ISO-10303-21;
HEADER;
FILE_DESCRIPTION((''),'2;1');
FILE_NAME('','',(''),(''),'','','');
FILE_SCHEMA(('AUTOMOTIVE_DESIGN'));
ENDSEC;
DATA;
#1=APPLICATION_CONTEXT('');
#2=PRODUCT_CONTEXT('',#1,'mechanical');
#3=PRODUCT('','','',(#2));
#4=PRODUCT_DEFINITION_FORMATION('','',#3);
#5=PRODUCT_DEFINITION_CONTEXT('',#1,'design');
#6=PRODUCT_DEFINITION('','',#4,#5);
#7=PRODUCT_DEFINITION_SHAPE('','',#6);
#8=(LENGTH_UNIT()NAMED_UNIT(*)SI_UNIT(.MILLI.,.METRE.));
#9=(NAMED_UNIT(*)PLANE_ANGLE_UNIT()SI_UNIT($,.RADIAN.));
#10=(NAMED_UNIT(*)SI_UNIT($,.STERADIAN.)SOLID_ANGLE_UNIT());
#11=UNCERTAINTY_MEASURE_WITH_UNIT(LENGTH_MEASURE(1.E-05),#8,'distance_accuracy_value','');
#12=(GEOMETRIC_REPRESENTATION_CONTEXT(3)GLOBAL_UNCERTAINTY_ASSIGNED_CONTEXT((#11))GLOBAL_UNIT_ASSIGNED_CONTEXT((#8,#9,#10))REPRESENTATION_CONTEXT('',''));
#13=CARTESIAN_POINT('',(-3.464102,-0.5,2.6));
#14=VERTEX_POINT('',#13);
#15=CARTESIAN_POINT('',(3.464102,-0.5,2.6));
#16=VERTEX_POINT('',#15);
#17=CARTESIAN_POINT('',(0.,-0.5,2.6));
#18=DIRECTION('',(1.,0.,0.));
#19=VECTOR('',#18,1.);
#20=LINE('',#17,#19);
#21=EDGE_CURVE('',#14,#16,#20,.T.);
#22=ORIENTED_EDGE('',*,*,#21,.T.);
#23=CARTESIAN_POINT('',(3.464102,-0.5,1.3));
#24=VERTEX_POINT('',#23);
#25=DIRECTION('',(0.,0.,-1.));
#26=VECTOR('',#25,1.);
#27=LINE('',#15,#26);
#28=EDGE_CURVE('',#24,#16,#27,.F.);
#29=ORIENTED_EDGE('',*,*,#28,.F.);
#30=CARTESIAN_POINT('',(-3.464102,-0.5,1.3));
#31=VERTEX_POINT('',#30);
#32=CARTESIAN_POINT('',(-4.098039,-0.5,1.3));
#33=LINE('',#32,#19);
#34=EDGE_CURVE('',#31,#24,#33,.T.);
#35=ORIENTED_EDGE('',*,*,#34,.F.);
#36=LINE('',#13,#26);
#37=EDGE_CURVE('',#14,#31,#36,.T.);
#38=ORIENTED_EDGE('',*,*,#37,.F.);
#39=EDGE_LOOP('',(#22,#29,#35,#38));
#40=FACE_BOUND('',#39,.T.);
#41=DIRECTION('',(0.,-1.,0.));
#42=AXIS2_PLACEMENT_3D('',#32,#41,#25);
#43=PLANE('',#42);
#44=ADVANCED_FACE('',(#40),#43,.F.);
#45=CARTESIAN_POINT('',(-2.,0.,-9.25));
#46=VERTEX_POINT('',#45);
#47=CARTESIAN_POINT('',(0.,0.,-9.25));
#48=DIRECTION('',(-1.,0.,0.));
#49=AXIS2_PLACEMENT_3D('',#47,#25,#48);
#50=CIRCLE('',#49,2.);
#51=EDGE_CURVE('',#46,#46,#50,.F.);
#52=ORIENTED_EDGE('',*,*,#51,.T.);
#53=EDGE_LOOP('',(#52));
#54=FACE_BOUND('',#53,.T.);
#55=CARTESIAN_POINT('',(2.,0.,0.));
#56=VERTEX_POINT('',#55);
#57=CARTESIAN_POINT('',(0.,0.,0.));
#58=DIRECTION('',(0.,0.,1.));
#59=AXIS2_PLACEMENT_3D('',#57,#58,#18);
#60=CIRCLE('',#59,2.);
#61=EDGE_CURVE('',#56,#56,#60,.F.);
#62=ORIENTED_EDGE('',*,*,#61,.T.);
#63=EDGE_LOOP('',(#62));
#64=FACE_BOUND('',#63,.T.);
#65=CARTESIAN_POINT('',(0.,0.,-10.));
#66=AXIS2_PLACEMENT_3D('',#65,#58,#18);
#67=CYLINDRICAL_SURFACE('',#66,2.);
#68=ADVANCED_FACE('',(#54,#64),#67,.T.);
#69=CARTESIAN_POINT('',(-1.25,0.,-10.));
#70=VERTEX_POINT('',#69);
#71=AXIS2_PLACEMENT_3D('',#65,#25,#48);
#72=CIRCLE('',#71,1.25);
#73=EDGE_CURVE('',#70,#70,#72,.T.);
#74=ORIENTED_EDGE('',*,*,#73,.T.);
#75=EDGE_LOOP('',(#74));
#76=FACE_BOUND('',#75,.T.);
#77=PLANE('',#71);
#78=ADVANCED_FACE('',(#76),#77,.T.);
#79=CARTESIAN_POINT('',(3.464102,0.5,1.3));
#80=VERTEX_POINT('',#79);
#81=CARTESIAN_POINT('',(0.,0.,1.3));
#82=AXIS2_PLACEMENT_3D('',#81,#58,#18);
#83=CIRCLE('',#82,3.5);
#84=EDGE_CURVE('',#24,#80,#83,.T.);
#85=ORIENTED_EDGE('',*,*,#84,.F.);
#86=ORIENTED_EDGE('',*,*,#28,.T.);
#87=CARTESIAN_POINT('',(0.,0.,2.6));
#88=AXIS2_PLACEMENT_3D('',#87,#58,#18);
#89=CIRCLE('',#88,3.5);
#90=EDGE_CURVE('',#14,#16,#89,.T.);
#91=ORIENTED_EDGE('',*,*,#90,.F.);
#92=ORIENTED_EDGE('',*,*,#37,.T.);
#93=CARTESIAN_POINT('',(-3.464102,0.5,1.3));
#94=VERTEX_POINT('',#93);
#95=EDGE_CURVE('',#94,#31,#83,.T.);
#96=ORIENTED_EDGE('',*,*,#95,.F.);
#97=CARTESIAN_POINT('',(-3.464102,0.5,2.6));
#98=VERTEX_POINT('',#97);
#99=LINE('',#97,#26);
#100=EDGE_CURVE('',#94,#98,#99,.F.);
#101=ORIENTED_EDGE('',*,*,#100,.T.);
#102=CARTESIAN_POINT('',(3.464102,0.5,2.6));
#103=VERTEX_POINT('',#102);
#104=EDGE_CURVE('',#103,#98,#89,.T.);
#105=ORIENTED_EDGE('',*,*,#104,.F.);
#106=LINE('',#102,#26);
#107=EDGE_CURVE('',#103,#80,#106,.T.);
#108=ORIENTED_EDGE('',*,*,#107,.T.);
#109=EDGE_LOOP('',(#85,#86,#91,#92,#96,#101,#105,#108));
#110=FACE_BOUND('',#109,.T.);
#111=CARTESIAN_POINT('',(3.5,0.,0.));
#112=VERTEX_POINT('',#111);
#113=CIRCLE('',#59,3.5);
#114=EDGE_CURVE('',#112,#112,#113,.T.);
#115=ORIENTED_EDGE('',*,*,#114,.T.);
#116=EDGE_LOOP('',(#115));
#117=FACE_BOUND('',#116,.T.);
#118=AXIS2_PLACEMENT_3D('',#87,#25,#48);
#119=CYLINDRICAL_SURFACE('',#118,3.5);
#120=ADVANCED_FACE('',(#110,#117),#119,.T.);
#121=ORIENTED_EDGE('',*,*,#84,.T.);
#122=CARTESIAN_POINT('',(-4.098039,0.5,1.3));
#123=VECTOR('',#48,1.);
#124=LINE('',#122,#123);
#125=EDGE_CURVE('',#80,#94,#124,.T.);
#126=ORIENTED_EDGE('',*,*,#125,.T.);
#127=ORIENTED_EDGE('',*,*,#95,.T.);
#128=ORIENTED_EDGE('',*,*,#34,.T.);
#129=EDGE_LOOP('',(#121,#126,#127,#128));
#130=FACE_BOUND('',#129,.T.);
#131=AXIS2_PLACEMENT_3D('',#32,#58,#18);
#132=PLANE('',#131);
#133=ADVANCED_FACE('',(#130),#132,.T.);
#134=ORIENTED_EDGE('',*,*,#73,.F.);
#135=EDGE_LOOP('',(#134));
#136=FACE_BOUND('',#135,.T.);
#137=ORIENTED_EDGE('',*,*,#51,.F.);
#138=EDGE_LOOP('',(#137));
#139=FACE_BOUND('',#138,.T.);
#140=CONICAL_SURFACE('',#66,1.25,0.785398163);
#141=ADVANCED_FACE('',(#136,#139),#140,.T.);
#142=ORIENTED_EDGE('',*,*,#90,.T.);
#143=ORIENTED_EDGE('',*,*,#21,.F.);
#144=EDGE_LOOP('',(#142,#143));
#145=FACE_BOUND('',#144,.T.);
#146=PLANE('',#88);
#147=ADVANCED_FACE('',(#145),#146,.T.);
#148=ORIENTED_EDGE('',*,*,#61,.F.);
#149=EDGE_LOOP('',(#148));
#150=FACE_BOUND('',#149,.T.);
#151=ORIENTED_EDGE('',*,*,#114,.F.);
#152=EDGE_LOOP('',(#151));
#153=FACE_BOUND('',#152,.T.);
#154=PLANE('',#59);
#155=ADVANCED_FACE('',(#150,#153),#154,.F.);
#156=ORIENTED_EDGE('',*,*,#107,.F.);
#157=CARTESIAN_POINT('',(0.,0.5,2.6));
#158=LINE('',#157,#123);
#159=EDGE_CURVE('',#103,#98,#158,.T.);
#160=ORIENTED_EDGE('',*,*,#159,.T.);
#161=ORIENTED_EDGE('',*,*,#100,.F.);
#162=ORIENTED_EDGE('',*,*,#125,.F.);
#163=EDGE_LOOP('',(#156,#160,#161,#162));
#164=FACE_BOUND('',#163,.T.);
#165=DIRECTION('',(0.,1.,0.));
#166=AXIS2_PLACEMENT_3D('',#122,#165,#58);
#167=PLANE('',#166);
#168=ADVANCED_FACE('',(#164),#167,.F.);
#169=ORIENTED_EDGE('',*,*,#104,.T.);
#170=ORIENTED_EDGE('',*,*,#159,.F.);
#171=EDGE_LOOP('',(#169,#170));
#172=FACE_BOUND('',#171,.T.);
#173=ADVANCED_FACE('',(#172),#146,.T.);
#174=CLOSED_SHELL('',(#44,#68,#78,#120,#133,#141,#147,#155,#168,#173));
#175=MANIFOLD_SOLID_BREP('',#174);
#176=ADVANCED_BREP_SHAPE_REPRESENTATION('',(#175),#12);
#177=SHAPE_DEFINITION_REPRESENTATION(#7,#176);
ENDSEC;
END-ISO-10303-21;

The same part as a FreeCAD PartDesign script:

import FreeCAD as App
import Part
import Sketcher

V = App.Vector


def edges_at(feature, points):
    """Names of the edges that pass closest to the given points."""
    edges = feature.Shape.Edges
    near = lambda p: min(range(len(edges)), key=lambda i: edges[i].distToShape(Part.Vertex(*p))[0])
    return sorted({f"Edge{near(p) + 1}" for p in points})

doc = App.newDocument("Part")
body = doc.addObject("PartDesign::Body", "Body")

# Sketch on XY plane
sketch1 = body.newObject("Sketcher::SketchObject", "Sketch")
sketch1.AttachmentSupport = (doc.getObject("XY_Plane"), [""])
sketch1.MapMode = "FlatFace"
sketch1.addGeometry(Part.Circle(V(0, 0, 0), V(0, 0, 1), 3.5), False)
sketch1.addConstraint([
    Sketcher.Constraint("Coincident", 0, 3, -1, 1),
    Sketcher.Constraint("Diameter", 0, 7.0),
])
pad1 = body.newObject("PartDesign::Pad", "Pad")
pad1.Profile = sketch1
pad1.Length = 2.6

# Sketch on XY plane
sketch2 = body.newObject("Sketcher::SketchObject", "Sketch001")
sketch2.AttachmentSupport = (doc.getObject("XY_Plane"), [""])
sketch2.MapMode = "FlatFace"
sketch2.addGeometry(Part.Circle(V(0, 0, 0), V(0, 0, 1), 2), False)
sketch2.addConstraint([
    Sketcher.Constraint("Coincident", 0, 3, -1, 1),
    Sketcher.Constraint("Diameter", 0, 4.0),
])
pad2 = body.newObject("PartDesign::Pad", "Pad001")
pad2.Profile = sketch2
pad2.Length = 10
pad2.Reversed = True

# Sketch on XY plane
sketch3 = body.newObject("Sketcher::SketchObject", "Sketch002")
sketch3.AttachmentSupport = (doc.getObject("XY_Plane"), [""])
sketch3.MapMode = "FlatFace"
sketch3.AttachmentOffset = App.Placement(V(0, 0, 2.6), App.Rotation())
sketch3.addGeometry([
    Part.LineSegment(V(-4.098039, 0.5, 0), V(-4.098039, -0.5, 0)),
    Part.LineSegment(V(-4.098039, -0.5, 0), V(3.990196, -0.5, 0)),
    Part.LineSegment(V(3.990196, -0.5, 0), V(3.990196, 0.5, 0)),
    Part.LineSegment(V(3.990196, 0.5, 0), V(-4.098039, 0.5, 0)),
], False)
sketch3.addConstraint([
    Sketcher.Constraint("Coincident", 0, 2, 1, 1),
    Sketcher.Constraint("Coincident", 1, 2, 2, 1),
    Sketcher.Constraint("Coincident", 2, 2, 3, 1),
    Sketcher.Constraint("Coincident", 3, 2, 0, 1),
    Sketcher.Constraint("Vertical", 0),
    Sketcher.Constraint("Horizontal", 1),
    Sketcher.Constraint("Vertical", 2),
    Sketcher.Constraint("Horizontal", 3),
    Sketcher.Constraint("DistanceY", 0, 2, 0, 1, 1.0),
    Sketcher.Constraint("DistanceY", 0, 2, -1, 1, 0.5),
    Sketcher.Constraint("DistanceX", 1, 1, 1, 2, 8.088235),
    Sketcher.Constraint("DistanceX", 0, 2, -1, 1, 4.098039),
])
pocket1 = body.newObject("PartDesign::Pocket", "Pocket")
pocket1.Profile = sketch3
pocket1.Length = 1.3
doc.recompute()

chamfer = body.newObject("PartDesign::Chamfer", "Chamfer")
chamfer.Base = (pocket1, edges_at(pocket1, [(-2, 0, -10)]))
chamfer.Size = 0.75

doc.recompute()
